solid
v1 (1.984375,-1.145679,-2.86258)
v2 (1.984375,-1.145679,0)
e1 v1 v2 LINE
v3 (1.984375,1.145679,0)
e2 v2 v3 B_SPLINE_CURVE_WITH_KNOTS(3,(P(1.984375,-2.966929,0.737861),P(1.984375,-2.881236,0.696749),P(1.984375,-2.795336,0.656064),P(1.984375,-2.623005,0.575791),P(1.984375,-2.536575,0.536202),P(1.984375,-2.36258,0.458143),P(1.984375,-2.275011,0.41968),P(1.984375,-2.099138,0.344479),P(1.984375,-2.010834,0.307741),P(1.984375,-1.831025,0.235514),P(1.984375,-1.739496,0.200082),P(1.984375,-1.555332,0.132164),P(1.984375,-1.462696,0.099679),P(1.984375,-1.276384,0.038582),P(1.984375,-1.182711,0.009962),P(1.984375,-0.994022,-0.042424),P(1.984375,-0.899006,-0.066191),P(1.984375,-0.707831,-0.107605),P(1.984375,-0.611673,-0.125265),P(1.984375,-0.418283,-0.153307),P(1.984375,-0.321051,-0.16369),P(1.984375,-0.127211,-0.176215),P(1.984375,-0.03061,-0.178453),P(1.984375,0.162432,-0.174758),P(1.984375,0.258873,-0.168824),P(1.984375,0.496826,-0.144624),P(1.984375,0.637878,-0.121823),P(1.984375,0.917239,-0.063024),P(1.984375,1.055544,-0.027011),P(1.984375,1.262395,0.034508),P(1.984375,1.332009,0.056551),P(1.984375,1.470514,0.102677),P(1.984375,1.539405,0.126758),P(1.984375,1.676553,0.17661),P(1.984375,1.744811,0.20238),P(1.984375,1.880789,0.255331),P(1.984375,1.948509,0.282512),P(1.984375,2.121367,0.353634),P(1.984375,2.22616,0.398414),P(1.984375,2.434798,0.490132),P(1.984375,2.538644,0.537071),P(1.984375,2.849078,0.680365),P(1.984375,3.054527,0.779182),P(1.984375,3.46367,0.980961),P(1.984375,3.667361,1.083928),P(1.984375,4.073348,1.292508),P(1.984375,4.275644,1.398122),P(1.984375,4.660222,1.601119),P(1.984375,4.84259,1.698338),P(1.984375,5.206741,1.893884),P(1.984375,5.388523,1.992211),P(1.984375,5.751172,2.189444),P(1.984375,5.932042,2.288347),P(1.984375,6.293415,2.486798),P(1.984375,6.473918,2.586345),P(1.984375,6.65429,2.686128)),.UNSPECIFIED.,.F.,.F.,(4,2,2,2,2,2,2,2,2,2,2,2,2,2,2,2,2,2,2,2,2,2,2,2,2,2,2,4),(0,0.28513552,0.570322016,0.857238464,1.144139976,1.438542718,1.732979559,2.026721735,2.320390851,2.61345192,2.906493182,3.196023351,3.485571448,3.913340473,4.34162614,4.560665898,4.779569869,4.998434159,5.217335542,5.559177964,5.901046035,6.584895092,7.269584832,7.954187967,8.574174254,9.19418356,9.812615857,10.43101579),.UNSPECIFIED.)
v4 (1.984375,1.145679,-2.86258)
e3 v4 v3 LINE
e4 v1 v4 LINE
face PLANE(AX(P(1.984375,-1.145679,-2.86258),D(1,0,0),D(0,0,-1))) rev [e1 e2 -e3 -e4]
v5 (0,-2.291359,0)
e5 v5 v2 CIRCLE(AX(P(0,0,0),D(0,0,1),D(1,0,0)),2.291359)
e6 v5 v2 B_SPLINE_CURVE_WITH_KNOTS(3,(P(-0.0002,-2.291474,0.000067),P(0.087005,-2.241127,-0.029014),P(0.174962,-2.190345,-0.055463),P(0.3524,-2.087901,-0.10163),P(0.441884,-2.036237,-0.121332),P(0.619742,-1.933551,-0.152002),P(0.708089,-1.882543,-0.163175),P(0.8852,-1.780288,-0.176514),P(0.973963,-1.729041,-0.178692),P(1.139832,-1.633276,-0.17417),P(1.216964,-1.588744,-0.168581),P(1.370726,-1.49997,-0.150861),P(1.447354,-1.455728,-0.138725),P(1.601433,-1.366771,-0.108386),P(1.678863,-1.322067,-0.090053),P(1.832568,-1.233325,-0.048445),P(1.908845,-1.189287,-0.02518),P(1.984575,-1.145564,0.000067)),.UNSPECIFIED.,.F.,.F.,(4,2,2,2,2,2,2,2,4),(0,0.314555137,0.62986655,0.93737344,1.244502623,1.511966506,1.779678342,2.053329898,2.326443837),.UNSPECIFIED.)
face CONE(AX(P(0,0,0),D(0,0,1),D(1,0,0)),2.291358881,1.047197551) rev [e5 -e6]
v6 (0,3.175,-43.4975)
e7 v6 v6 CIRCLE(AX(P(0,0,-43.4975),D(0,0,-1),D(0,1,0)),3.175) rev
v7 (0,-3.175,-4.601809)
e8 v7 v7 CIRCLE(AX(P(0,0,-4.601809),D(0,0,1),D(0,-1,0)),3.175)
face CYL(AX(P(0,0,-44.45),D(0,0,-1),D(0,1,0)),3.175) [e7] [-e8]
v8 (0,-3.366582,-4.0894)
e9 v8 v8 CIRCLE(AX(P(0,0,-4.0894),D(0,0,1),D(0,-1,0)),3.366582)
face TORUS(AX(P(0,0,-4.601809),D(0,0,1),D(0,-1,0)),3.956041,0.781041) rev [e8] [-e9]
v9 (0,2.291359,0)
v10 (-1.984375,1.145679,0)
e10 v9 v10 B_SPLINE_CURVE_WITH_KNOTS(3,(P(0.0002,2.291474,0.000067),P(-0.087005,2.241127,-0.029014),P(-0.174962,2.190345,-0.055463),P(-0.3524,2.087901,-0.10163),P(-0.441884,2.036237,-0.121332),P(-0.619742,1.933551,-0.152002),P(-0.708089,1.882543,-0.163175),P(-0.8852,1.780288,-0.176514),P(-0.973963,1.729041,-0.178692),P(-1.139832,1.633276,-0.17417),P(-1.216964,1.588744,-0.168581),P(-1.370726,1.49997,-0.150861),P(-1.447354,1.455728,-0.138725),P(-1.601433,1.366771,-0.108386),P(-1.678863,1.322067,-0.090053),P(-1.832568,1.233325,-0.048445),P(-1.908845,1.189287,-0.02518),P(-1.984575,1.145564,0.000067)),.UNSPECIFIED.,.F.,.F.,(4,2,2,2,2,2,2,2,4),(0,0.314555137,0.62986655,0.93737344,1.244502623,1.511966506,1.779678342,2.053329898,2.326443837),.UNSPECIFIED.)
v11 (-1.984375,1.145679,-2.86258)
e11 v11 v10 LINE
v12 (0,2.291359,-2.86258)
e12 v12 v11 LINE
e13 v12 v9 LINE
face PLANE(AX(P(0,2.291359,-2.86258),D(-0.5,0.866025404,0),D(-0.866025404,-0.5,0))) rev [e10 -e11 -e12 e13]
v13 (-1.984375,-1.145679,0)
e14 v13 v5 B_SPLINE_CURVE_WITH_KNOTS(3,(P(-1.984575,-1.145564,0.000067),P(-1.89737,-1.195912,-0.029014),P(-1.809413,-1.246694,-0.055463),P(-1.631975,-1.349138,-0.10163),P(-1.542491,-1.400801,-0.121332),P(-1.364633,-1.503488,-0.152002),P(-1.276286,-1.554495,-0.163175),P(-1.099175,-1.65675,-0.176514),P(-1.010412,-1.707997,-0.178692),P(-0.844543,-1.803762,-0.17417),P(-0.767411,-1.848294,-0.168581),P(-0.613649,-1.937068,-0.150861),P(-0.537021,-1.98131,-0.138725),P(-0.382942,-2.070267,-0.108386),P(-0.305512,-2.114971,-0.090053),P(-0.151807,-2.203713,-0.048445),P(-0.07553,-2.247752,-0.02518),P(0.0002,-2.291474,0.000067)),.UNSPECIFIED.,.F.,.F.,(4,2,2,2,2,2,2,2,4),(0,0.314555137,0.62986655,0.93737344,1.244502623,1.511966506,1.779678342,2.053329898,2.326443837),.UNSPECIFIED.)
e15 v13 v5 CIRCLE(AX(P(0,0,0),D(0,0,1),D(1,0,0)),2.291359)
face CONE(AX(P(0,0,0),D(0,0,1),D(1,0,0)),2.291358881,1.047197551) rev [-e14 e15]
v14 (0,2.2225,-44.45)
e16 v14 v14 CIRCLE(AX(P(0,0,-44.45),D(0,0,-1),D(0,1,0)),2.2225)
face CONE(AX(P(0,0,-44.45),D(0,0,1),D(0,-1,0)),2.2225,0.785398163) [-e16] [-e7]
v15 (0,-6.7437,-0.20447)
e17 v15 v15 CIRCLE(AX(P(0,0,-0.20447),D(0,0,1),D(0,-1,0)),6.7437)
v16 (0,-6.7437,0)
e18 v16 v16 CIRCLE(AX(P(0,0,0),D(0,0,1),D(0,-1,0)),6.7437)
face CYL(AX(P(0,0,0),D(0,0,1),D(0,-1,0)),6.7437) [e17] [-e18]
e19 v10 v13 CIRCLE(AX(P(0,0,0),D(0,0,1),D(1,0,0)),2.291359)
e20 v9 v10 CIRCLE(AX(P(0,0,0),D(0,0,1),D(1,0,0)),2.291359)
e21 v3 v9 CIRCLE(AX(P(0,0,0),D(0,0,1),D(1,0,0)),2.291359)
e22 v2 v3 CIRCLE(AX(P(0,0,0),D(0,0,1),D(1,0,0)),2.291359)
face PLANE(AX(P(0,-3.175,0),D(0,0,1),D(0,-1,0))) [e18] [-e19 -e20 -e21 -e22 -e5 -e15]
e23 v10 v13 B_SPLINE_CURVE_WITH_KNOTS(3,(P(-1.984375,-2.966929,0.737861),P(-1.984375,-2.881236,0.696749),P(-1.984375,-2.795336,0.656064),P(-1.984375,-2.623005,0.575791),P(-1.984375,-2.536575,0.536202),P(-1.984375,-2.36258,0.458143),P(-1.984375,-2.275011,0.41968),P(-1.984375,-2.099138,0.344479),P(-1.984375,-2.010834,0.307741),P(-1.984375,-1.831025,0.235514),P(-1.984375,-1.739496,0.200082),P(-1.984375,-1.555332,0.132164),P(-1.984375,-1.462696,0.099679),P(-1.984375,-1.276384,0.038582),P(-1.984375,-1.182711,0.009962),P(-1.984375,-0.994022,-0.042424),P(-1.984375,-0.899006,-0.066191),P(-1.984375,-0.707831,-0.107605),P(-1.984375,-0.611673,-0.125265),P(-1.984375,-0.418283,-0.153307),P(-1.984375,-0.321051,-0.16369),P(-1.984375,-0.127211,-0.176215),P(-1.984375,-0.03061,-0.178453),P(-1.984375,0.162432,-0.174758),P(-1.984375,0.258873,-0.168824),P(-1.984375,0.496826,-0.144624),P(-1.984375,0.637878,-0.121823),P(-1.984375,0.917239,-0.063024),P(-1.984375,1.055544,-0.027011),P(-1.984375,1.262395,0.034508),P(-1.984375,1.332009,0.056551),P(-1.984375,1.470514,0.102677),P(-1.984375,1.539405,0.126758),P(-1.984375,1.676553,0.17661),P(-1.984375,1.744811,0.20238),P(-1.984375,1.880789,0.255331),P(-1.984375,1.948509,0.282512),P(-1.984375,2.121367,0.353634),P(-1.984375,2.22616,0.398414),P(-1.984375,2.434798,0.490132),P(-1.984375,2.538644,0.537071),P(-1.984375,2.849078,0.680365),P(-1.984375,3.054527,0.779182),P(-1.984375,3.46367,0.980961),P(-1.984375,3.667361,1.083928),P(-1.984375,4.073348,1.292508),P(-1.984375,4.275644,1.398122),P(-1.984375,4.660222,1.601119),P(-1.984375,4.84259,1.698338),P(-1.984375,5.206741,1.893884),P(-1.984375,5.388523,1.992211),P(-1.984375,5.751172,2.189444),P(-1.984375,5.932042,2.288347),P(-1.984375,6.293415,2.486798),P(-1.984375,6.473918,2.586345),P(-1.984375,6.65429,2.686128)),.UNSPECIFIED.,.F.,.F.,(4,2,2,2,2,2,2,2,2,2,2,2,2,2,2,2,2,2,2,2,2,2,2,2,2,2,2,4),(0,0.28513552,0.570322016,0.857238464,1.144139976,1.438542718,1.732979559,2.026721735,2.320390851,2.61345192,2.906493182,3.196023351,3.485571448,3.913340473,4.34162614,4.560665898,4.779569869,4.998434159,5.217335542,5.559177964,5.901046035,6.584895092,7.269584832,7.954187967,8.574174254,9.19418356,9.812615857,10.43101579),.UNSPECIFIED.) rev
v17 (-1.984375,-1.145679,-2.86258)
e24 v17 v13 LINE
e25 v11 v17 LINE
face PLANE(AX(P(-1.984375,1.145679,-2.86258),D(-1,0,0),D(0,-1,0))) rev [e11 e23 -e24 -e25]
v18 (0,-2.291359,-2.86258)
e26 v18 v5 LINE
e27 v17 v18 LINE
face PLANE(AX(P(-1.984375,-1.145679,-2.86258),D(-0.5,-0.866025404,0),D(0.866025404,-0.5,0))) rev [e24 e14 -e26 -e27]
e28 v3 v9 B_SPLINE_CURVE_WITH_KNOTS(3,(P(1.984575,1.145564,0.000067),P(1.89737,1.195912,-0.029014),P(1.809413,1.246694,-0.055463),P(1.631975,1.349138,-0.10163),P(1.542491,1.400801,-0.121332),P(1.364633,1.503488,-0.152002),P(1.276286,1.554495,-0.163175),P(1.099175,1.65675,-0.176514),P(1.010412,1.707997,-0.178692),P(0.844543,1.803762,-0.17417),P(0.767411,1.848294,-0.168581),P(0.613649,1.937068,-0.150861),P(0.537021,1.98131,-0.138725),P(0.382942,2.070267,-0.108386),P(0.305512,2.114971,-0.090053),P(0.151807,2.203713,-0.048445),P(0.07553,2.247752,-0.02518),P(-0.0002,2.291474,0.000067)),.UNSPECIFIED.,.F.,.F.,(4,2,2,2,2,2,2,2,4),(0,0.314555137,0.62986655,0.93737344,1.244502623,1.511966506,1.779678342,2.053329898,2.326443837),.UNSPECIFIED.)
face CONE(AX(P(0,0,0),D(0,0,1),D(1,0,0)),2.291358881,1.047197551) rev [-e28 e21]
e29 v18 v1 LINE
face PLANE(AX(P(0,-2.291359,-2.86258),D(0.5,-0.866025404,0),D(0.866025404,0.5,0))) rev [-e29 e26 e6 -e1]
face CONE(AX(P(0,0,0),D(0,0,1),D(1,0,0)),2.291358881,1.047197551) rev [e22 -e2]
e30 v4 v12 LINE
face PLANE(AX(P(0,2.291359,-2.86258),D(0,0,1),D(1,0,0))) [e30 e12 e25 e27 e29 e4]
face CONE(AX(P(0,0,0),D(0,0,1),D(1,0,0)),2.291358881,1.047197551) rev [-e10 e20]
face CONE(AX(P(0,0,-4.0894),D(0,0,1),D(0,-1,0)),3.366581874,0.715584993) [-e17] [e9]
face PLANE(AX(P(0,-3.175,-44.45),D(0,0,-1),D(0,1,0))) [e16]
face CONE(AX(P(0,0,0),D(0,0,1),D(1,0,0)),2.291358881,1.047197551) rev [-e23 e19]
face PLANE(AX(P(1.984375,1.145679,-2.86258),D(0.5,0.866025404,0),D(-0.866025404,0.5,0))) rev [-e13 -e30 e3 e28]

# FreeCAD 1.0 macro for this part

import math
import FreeCAD as App
import Part
import Sketcher
Q = App.Units.Quantity


def edges_at(feature, points):
    """Names of the edges that pass closest to the given points."""
    edges = feature.Shape.Edges
    near = lambda p: min(range(len(edges)), key=lambda i: edges[i].distToShape(Part.Vertex(*p))[0])
    return sorted({f"Edge{near(p) + 1}" for p in points})

doc = App.newDocument("Part")
body = doc.addObject("PartDesign::Body", "Body")

# Sketch on YZ plane
sketch1 = body.newObject("Sketcher::SketchObject", "Sketch")
sketch1.AttachmentSupport = (doc.getObject("YZ_Plane"), [""])
sketch1.MapMode = "FlatFace"
sketch1.addGeometry(Part.LineSegment(App.Vector(3.2, 0, 0), App.Vector(0, 0, 0)), False)
sketch1.addGeometry(Part.LineSegment(App.Vector(0, 0, 0), App.Vector(0, -44.5, 0)), False)
sketch1.addGeometry(Part.LineSegment(App.Vector(0, -44.5, 0), App.Vector(3.2, -44.5, 0)), False)
sketch1.addGeometry(Part.LineSegment(App.Vector(3.2, -44.5, 0), App.Vector(3.2, 0, 0)), False)
sketch1.addConstraint(Sketcher.Constraint("Coincident", 0, 2, 1, 1))
sketch1.addConstraint(Sketcher.Constraint("Coincident", 1, 2, 2, 1))
sketch1.addConstraint(Sketcher.Constraint("Coincident", 2, 2, 3, 1))
sketch1.addConstraint(Sketcher.Constraint("Coincident", 3, 2, 0, 1))
sketch1.addConstraint(Sketcher.Constraint("Horizontal", 0))
sketch1.addConstraint(Sketcher.Constraint("Vertical", 1))
sketch1.addConstraint(Sketcher.Constraint("Horizontal", 2))
sketch1.addConstraint(Sketcher.Constraint("Vertical", 3))
sketch1.addConstraint(Sketcher.Constraint("Coincident", 0, 2, -1, 1))
sketch1.addConstraint(Sketcher.Constraint("DistanceY", 1, 2, 1, 1, Q("1.75 in")))
sketch1.addConstraint(Sketcher.Constraint("DistanceX", 0, 2, 0, 1, Q("0.125 in")))
revolution = body.newObject("PartDesign::Revolution", "Revolution")
revolution.Profile = sketch1
revolution.ReferenceAxis = (sketch1, ["V_Axis"])
revolution.Angle = 360
doc.recompute()

chamfer = body.newObject("PartDesign::Chamfer", "Chamfer")
chamfer.Base = (revolution, edges_at(revolution, [(0, -3.175, -44.45)]))
chamfer.Size = Q("0.0375 in")

# Sketch on YZ plane
sketch2 = body.newObject("Sketcher::SketchObject", "Sketch001")
sketch2.AttachmentSupport = (doc.getObject("YZ_Plane"), [""])
sketch2.MapMode = "FlatFace"
sketch2.addGeometry(Part.LineSegment(App.Vector(6.74, -0.2, 0), App.Vector(6.74, 0, 0)), False)
sketch2.addGeometry(Part.LineSegment(App.Vector(6.74, 0, 0), App.Vector(0, 0, 0)), False)
sketch2.addGeometry(Part.LineSegment(App.Vector(0, 0, 0), App.Vector(0, -4.6, 0)), False)
sketch2.addGeometry(Part.LineSegment(App.Vector(0, -4.6, 0), App.Vector(3.17, -4.6, 0)), False)
sketch2.addGeometry(Part.ArcOfCircle(Part.Circle(App.Vector(3.96, -4.6, 0), App.Vector(0, 0, 1), 0.78), math.radians(139), math.radians(180)), False)
sketch2.addGeometry(Part.LineSegment(App.Vector(3.37, -4.09, 0), App.Vector(6.74, -0.2, 0)), False)
sketch2.addConstraint(Sketcher.Constraint("Coincident", 0, 2, 1, 1))
sketch2.addConstraint(Sketcher.Constraint("Coincident", 1, 2, 2, 1))
sketch2.addConstraint(Sketcher.Constraint("Coincident", 2, 2, 3, 1))
sketch2.addConstraint(Sketcher.Constraint("Coincident", 3, 2, 4, 2))
sketch2.addConstraint(Sketcher.Constraint("Tangent", 4, 1, 5, 1))
sketch2.addConstraint(Sketcher.Constraint("Coincident", 5, 2, 0, 1))
sketch2.addConstraint(Sketcher.Constraint("Vertical", 0))
sketch2.addConstraint(Sketcher.Constraint("Horizontal", 1))
sketch2.addConstraint(Sketcher.Constraint("Vertical", 2))
sketch2.addConstraint(Sketcher.Constraint("Horizontal", 3))
sketch2.addConstraint(Sketcher.Constraint("Coincident", 1, 2, -1, 1))
sketch2.addConstraint(Sketcher.Constraint("Horizontal", 4, 3, 2, 2))
sketch2.addConstraint(Sketcher.Constraint("Angle", 5, Q("49 deg")))
sketch2.addConstraint(Sketcher.Constraint("DistanceX", 3, 1, 3, 2, Q("0.125 in")))
sketch2.addConstraint(Sketcher.Constraint("DistanceX", 1, 2, 1, 1, Q("0.2655 in")))
sketch2.addConstraint(Sketcher.Constraint("DistanceY", 4, 1, -1, 1, Q("0.161 in")))
sketch2.addConstraint(Sketcher.Constraint("Radius", 4, 0.781041))
revolution2 = body.newObject("PartDesign::Revolution", "Revolution001")
revolution2.Profile = sketch2
revolution2.ReferenceAxis = (sketch2, ["V_Axis"])
revolution2.Angle = 360

# Sketch on YZ plane
sketch3 = body.newObject("Sketcher::SketchObject", "Sketch002")
sketch3.AttachmentSupport = (doc.getObject("YZ_Plane"), [""])
sketch3.MapMode = "FlatFace"
sketch3.addGeometry(Part.LineSegment(App.Vector(0, -4.6, 0), App.Vector(-3.2, -4.6, 0)), False)
sketch3.addGeometry(Part.LineSegment(App.Vector(-3.2, -4.6, 0), App.Vector(0, -7.7, 0)), False)
sketch3.addGeometry(Part.LineSegment(App.Vector(0, -7.7, 0), App.Vector(0, -4.6, 0)), False)
sketch3.addConstraint(Sketcher.Constraint("Coincident", 0, 2, 1, 1))
sketch3.addConstraint(Sketcher.Constraint("Coincident", 1, 2, 2, 1))
sketch3.addConstraint(Sketcher.Constraint("Coincident", 2, 2, 0, 1))
sketch3.addConstraint(Sketcher.Constraint("Horizontal", 0))
sketch3.addConstraint(Sketcher.Constraint("Vertical", 2))
sketch3.addConstraint(Sketcher.Constraint("PointOnObject", 1, 2, -2))
sketch3.addConstraint(Sketcher.Constraint("Angle", 1, Q("-44 deg")))
sketch3.addConstraint(Sketcher.Constraint("DistanceX", 0, 2, 0, 1, Q("0.125 in")))
sketch3.addConstraint(Sketcher.Constraint("DistanceY", 0, 2, -1, 1, 4.601809))
revolution3 = body.newObject("PartDesign::Revolution", "Revolution002")
revolution3.Profile = sketch3
revolution3.ReferenceAxis = (sketch3, ["V_Axis"])
revolution3.Angle = 360

# Sketch on XY plane
sketch4 = body.newObject("Sketcher::SketchObject", "Sketch003")
sketch4.AttachmentSupport = (doc.getObject("XY_Plane"), [""])
sketch4.MapMode = "FlatFace"
sketch4.addGeometry(Part.LineSegment(App.Vector(0, 2.3, 0), App.Vector(-2, 1.1, 0)), False)
sketch4.addGeometry(Part.LineSegment(App.Vector(-2, 1.1, 0), App.Vector(-2, -1.1, 0)), False)
sketch4.addGeometry(Part.LineSegment(App.Vector(-2, -1.1, 0), App.Vector(0, -2.3, 0)), False)
sketch4.addGeometry(Part.LineSegment(App.Vector(0, -2.3, 0), App.Vector(2, -1.1, 0)), False)
sketch4.addGeometry(Part.LineSegment(App.Vector(2, -1.1, 0), App.Vector(2, 1.1, 0)), False)
sketch4.addGeometry(Part.LineSegment(App.Vector(2, 1.1, 0), App.Vector(0, 2.3, 0)), False)
sketch4.addConstraint(Sketcher.Constraint("Coincident", 0, 2, 1, 1))
sketch4.addConstraint(Sketcher.Constraint("Coincident", 1, 2, 2, 1))
sketch4.addConstraint(Sketcher.Constraint("Coincident", 2, 2, 3, 1))
sketch4.addConstraint(Sketcher.Constraint("Coincident", 3, 2, 4, 1))
sketch4.addConstraint(Sketcher.Constraint("Coincident", 4, 2, 5, 1))
sketch4.addConstraint(Sketcher.Constraint("Coincident", 5, 2, 0, 1))
sketch4.addConstraint(Sketcher.Constraint("Vertical", 1))
sketch4.addConstraint(Sketcher.Constraint("Vertical", 4))
sketch4.addConstraint(Sketcher.Constraint("Symmetric", 0, 2, 3, 2, -1, 1))
sketch4.addConstraint(Sketcher.Constraint("Symmetric", 2, 2, 5, 2, -1, 1))
sketch4.addConstraint(Sketcher.Constraint("PointOnObject", 2, 2, -2))
sketch4.addConstraint(Sketcher.Constraint("Parallel", 2, 5))
sketch4.addConstraint(Sketcher.Constraint("Horizontal", 1, 2, 3, 2))
sketch4.addConstraint(Sketcher.Constraint("Angle", 0, Q("-150 deg")))
sketch4.addConstraint(Sketcher.Constraint("DistanceX", 0, 2, -1, 1, Q("0.078125 in")))
sketch4.addConstraint(Sketcher.Constraint("DistanceY", 1, 2, 1, 1, 2.291359))
pocket1 = body.newObject("PartDesign::Pocket", "Pocket")
pocket1.Profile = sketch4
pocket1.Length = Q("0.1127 in")

# Sketch on YZ plane
sketch5 = body.newObject("Sketcher::SketchObject", "Sketch004")
sketch5.AttachmentSupport = (doc.getObject("YZ_Plane"), [""])
sketch5.MapMode = "FlatFace"
sketch5.addGeometry(Part.LineSegment(App.Vector(0, 0, 0), App.Vector(-2.3, 0, 0)), False)
sketch5.addGeometry(Part.LineSegment(App.Vector(-2.3, 0, 0), App.Vector(0, -1.3, 0)), False)
sketch5.addGeometry(Part.LineSegment(App.Vector(0, -1.3, 0), App.Vector(0, 0, 0)), False)
sketch5.addConstraint(Sketcher.Constraint("Coincident", 0, 2, 1, 1))
sketch5.addConstraint(Sketcher.Constraint("Coincident", 1, 2, 2, 1))
sketch5.addConstraint(Sketcher.Constraint("Coincident", 2, 2, 0, 1))
sketch5.addConstraint(Sketcher.Constraint("Horizontal", 0))
sketch5.addConstraint(Sketcher.Constraint("Vertical", 2))
sketch5.addConstraint(Sketcher.Constraint("Coincident", 2, 2, -1, 1))
sketch5.addConstraint(Sketcher.Constraint("Angle", 1, Q("-30 deg")))
sketch5.addConstraint(Sketcher.Constraint("DistanceX", 0, 2, 0, 1, 2.291359))
groove = body.newObject("PartDesign::Groove", "Groove")
groove.Profile = sketch5
groove.ReferenceAxis = (sketch5, ["V_Axis"])
groove.Angle = 360

# Sketch on XY plane
sketch6 = body.newObject("Sketcher::SketchObject", "Sketch005")
sketch6.AttachmentSupport = (doc.getObject("XY_Plane"), [""])
sketch6.MapMode = "FlatFace"
sketch6.AttachmentOffset = App.Placement(App.Vector(0, 0, -0.875 * 25.4), App.Rotation())
sketch6.addGeometry(Part.Circle(App.Vector(0, 0, 0), App.Vector(0, 0, 1), 3.2), False)
sketch6.addConstraint(Sketcher.Constraint("Coincident", 0, 3, -1, 1))
sketch6.addConstraint(Sketcher.Constraint("Diameter", 0, Q("0.25 in")))
pad1 = body.newObject("PartDesign::Pad", "Pad")
pad1.Profile = sketch6
pad1.Length = 17.623191

doc.recompute()
